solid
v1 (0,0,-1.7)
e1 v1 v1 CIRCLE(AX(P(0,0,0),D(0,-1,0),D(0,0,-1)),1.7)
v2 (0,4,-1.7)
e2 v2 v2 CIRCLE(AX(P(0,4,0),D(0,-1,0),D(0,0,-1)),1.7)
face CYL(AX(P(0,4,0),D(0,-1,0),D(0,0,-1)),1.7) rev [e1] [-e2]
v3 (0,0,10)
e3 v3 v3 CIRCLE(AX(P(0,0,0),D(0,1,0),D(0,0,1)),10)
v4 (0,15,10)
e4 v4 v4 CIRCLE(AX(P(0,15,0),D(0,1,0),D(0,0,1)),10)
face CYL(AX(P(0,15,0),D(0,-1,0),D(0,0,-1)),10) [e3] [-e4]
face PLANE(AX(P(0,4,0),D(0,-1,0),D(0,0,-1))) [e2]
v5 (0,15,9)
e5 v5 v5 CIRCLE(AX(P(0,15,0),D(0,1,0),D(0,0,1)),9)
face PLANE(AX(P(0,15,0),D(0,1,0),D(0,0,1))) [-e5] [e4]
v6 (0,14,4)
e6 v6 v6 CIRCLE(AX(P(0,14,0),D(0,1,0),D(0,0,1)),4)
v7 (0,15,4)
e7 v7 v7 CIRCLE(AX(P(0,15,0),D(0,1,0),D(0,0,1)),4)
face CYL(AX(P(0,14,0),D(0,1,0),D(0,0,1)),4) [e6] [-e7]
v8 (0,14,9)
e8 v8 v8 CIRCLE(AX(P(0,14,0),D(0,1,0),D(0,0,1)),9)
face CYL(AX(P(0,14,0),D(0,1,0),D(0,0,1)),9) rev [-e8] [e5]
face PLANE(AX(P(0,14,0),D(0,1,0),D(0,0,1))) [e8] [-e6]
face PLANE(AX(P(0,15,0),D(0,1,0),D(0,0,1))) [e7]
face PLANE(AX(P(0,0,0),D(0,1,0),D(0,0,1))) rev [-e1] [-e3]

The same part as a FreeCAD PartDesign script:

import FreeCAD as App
import Part
import Sketcher

V = App.Vector

doc = App.newDocument("Part")
body = doc.addObject("PartDesign::Body", "Body")

# Sketch on XZ plane
sketch1 = body.newObject("Sketcher::SketchObject", "Sketch")
sketch1.AttachmentSupport = (doc.getObject("XZ_Plane"), [""])
sketch1.MapMode = "FlatFace"
sketch1.addGeometry(Part.Circle(V(0, 0, 0), V(0, 0, 1), 10), False)
sketch1.addConstraint([
    Sketcher.Constraint("Coincident", 0, 3, -1, 1),
    Sketcher.Constraint("Diameter", 0, 20.0),
])
pad1 = body.newObject("PartDesign::Pad", "Pad")
pad1.Profile = sketch1
pad1.Length = 15
pad1.Reversed = True

# Sketch on XZ plane
sketch2 = body.newObject("Sketcher::SketchObject", "Sketch001")
sketch2.AttachmentSupport = (doc.getObject("XZ_Plane"), [""])
sketch2.MapMode = "FlatFace"
sketch2.AttachmentOffset = App.Placement(V(0, 0, -15), App.Rotation())
sketch2.addGeometry([
    Part.Circle(V(0, 0, 0), V(0, 0, 1), 9),
    Part.Circle(V(0, 0, 0), V(0, 0, 1), 4),
], False)
sketch2.addConstraint([
    Sketcher.Constraint("Coincident", 0, 3, -1, 1),
    Sketcher.Constraint("Coincident", 1, 3, -1, 1),
    Sketcher.Constraint("Diameter", 0, 18.0),
    Sketcher.Constraint("Diameter", 1, 8.0),
])
pocket1 = body.newObject("PartDesign::Pocket", "Pocket")
pocket1.Profile = sketch2
pocket1.Length = 1
pocket1.Reversed = True

# Sketch on XZ plane
sketch3 = body.newObject("Sketcher::SketchObject", "Sketch002")
sketch3.AttachmentSupport = (doc.getObject("XZ_Plane"), [""])
sketch3.MapMode = "FlatFace"
sketch3.addGeometry(Part.Circle(V(0, 0, 0), V(0, 0, 1), 1.7), False)
sketch3.addConstraint([
    Sketcher.Constraint("Coincident", 0, 3, -1, 1),
    Sketcher.Constraint("Diameter", 0, 3.4),
])
pocket2 = body.newObject("PartDesign::Pocket", "Pocket001")
pocket2.Profile = sketch3
pocket2.Length = 4

doc.recompute()
